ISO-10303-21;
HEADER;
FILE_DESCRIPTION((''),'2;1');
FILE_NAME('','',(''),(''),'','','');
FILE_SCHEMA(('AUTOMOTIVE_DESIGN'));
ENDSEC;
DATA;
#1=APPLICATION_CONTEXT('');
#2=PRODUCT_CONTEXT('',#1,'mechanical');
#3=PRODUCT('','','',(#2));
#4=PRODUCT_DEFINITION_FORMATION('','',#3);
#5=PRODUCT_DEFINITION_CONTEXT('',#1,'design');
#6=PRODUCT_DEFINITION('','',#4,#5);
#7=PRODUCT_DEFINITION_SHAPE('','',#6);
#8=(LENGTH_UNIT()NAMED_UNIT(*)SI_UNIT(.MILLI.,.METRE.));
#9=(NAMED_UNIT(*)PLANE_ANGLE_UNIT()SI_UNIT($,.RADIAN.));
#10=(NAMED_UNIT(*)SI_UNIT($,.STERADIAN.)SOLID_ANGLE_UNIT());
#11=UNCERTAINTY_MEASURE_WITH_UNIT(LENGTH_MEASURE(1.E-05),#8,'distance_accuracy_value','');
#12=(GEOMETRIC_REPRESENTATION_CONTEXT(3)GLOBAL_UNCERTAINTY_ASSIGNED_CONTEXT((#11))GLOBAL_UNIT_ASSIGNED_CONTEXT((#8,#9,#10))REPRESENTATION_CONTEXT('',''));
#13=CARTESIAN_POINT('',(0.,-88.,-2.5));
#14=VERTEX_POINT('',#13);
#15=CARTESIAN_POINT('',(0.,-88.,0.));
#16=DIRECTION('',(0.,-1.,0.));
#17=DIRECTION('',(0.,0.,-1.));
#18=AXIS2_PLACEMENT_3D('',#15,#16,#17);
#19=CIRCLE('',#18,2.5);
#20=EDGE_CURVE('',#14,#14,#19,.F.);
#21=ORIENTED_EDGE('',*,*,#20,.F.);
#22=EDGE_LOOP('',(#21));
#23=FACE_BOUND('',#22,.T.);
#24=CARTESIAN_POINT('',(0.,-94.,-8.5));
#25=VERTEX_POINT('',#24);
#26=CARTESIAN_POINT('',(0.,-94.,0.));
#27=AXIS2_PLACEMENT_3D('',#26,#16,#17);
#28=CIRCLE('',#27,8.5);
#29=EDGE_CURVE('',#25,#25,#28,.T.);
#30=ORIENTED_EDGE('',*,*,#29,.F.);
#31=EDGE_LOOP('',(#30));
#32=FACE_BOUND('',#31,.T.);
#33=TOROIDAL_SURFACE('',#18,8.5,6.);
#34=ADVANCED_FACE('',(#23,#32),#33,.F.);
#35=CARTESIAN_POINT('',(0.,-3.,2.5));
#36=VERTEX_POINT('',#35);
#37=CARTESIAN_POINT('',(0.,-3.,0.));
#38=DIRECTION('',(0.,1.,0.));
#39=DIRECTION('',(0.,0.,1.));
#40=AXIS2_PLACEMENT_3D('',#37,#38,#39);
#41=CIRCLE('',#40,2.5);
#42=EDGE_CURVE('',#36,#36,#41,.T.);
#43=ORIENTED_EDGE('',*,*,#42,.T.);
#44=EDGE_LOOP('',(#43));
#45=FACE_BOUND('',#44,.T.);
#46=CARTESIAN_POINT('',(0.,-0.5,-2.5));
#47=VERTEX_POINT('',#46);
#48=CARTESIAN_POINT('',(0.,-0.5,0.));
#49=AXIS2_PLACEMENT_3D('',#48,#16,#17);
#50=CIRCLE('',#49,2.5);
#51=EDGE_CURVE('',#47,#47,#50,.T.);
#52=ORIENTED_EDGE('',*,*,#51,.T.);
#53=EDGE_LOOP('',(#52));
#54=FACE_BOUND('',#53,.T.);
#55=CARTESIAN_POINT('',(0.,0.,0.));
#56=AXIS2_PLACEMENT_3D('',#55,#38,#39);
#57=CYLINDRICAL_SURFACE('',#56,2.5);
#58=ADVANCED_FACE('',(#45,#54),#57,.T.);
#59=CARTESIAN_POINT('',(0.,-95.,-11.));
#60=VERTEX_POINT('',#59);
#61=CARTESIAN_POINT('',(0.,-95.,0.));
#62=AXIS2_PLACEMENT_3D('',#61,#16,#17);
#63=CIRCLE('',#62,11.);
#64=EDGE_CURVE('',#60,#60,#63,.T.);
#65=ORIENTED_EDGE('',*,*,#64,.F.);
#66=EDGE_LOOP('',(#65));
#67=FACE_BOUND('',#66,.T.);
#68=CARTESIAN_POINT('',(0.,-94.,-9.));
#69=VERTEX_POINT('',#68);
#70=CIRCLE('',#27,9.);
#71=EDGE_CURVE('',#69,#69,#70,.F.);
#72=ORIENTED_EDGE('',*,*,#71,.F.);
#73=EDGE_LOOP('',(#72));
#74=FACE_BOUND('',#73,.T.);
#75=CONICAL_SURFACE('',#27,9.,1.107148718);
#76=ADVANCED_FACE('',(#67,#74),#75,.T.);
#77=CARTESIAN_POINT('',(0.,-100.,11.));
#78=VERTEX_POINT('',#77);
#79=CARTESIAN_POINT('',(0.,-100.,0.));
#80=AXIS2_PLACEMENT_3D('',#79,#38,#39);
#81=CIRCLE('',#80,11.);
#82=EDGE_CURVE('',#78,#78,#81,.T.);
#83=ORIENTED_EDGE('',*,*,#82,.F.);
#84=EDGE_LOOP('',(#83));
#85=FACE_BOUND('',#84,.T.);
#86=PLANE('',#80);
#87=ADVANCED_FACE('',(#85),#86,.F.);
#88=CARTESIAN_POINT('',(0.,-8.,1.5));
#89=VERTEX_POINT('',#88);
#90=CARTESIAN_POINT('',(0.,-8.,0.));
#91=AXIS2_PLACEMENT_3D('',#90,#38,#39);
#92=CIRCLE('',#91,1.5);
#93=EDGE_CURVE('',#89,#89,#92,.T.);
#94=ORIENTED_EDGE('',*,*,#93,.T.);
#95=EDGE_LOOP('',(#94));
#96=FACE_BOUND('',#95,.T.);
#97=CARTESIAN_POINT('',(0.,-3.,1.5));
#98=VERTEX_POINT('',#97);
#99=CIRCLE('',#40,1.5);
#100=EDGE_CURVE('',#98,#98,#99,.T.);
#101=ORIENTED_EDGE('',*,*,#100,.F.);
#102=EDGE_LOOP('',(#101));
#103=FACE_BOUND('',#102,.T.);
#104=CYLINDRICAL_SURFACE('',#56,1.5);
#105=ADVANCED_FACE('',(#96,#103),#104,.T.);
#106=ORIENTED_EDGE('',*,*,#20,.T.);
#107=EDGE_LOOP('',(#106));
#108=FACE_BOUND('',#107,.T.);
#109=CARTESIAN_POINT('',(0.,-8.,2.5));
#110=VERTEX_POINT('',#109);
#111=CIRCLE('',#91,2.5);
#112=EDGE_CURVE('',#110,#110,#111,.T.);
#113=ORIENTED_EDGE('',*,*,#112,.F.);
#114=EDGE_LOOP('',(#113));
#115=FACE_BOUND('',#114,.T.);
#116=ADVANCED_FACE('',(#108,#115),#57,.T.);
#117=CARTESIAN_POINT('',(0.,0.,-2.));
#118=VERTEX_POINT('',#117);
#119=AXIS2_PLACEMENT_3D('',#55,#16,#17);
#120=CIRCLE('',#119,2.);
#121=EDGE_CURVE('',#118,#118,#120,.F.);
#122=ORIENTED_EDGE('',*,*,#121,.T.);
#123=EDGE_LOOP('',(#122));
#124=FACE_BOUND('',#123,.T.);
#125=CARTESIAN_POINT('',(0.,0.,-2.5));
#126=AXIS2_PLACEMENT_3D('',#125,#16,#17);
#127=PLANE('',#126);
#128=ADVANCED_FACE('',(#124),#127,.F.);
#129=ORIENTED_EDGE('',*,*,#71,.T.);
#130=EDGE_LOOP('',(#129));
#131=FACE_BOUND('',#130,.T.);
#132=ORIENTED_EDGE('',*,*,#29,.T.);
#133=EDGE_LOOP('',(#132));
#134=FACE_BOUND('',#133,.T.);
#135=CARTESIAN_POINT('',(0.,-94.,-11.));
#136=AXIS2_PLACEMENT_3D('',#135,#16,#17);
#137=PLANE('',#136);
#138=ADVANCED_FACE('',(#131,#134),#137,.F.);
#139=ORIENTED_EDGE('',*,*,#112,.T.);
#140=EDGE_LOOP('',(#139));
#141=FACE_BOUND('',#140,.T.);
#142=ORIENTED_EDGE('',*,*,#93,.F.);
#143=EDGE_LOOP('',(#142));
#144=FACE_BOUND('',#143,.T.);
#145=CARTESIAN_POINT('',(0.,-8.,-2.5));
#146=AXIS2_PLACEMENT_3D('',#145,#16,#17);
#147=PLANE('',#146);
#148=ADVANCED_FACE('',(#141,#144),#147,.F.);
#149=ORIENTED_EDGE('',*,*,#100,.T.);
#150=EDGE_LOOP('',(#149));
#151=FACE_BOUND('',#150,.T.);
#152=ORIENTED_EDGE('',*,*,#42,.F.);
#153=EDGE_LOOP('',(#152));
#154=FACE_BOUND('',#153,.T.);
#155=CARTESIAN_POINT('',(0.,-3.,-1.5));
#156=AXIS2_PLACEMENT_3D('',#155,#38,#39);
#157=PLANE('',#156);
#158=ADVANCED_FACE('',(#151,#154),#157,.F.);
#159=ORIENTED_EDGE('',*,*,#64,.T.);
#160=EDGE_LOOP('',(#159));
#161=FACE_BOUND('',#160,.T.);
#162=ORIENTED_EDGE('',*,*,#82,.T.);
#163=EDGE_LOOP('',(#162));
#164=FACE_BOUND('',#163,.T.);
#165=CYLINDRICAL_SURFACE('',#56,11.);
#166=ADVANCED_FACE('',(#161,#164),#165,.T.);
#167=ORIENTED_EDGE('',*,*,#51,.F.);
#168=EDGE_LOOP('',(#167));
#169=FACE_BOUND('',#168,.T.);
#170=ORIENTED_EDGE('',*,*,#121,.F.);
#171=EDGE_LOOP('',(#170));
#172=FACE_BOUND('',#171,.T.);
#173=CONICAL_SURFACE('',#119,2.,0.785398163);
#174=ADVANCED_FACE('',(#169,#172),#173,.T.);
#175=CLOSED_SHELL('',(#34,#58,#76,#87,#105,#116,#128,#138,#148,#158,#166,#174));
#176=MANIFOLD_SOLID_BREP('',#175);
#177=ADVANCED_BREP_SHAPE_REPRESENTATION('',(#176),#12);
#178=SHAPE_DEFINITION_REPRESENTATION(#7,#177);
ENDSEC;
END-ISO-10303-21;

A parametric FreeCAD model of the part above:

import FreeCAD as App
import Part
import Sketcher

V = App.Vector
Q = App.Units.Quantity


def edges_at(feature, points):
    """Names of the edges that pass closest to the given points."""
    edges = feature.Shape.Edges
    near = lambda p: min(range(len(edges)), key=lambda i: edges[i].distToShape(Part.Vertex(*p))[0])
    return sorted({f"Edge{near(p) + 1}" for p in points})


def add_polygon(sketch, points):
    """Adds a closed chain of lines whose ends are joined by coincident constraints."""
    first, n = sketch.GeometryCount, len(points)
    for a, b in zip(points, points[1:] + points[:1]):
        sketch.addGeometry(Part.LineSegment(App.Vector(*a, 0), App.Vector(*b, 0)), False)
    for i in range(n):
        sketch.addConstraint(Sketcher.Constraint("Coincident", first + i, 2, first + (i + 1) % n, 1))

doc = App.newDocument("Part")
params = doc.addObject("Spreadsheet::Sheet", "Params")
for row, (alias, value) in enumerate([
    ("sketch1_width", "100 mm"),
    ("sketch1_width2", "6 mm"),
    ("sketch1_width3", "86 mm"),
    ("sketch1_width4", "5 mm"),
    ("sketch1_height", "11 mm"),
    ("revolution_angle", "360 deg"),
    ("fillet_radius", "6 mm"),
    ("chamfer_size", "1 mm"),
    ("chamfer_size2", "2 mm"),
    ("chamfer2_size", "0.5 mm"),
], start=1):
    params.set(f"A{row}", alias)
    params.set(f"B{row}", "=" + value)
    params.setAlias(f"B{row}", alias)

body = doc.addObject("PartDesign::Body", "Body")

# Sketch on YZ plane
sketch1 = body.newObject("Sketcher::SketchObject", "Sketch")
sketch1.AttachmentSupport = (doc.getObject("YZ_Plane"), [""])
sketch1.MapMode = "FlatFace"
add_polygon(sketch1, [(0, 0), (-100, 0), (-100, -11), (-94, -11), (-94, -2.5), (-8, -2.5), (-8, -1.5), (-3, -1.5), (-3, -2.5), (0, -2.5)])  # lines 0-9
sketch1.addConstraint([
    Sketcher.Constraint("Horizontal", 0),
    Sketcher.Constraint("Vertical", 1),
    Sketcher.Constraint("Horizontal", 2),
    Sketcher.Constraint("Vertical", 3),
    Sketcher.Constraint("Horizontal", 4),
    Sketcher.Constraint("Vertical", 5),
    Sketcher.Constraint("Horizontal", 6),
    Sketcher.Constraint("Vertical", 7),
    Sketcher.Constraint("Horizontal", 8),
    Sketcher.Constraint("Vertical", 9),
    Sketcher.Constraint("Coincident", 9, 2, -1, 1),
    Sketcher.Constraint("Horizontal", 4, 2, 7, 2),
    Sketcher.Constraint("DistanceX", 0, 2, 0, 1, Q("100 mm")),
    Sketcher.Constraint("DistanceX", 2, 1, 2, 2, Q("6 mm")),
    Sketcher.Constraint("DistanceX", 4, 1, 4, 2, Q("86 mm")),
    Sketcher.Constraint("DistanceX", 6, 1, 6, 2, Q("5 mm")),
    Sketcher.Constraint("DistanceY", 1, 2, 1, 1, Q("11 mm")),
    Sketcher.Constraint("DistanceY", 5, 1, 5, 2, Q("1 mm")),
    Sketcher.Constraint("DistanceY", 3, 1, 3, 2, Q("8.5 mm")),
])
sketch1.setExpression("Constraints[22]", "Params.sketch1_width")
sketch1.setExpression("Constraints[23]", "Params.sketch1_width2")
sketch1.setExpression("Constraints[24]", "Params.sketch1_width3")
sketch1.setExpression("Constraints[25]", "Params.sketch1_width4")
sketch1.setExpression("Constraints[26]", "Params.sketch1_height")
revolution = body.newObject("PartDesign::Revolution", "Revolution")
revolution.Profile = sketch1
revolution.ReferenceAxis = (sketch1, ["H_Axis"])
revolution.setExpression("Angle", "Params.revolution_angle")
doc.recompute()

fillet = body.newObject("PartDesign::Fillet", "Fillet")
fillet.Base = (revolution, edges_at(revolution, [(0, -94, 2.5)]))
fillet.setExpression("Radius", "Params.fillet_radius")
doc.recompute()

chamfer = body.newObject("PartDesign::Chamfer", "Chamfer")
chamfer.Base = (fillet, edges_at(fillet, [(0, -94, 11)]))
chamfer.ChamferType = "Two distances"
chamfer.setExpression("Size", "Params.chamfer_size")
chamfer.setExpression("Size2", "Params.chamfer_size2")
chamfer.FlipDirection = True
doc.recompute()

chamfer2 = body.newObject("PartDesign::Chamfer", "Chamfer001")
chamfer2.Base = (chamfer, edges_at(chamfer, [(0, 0, 2.5)]))
chamfer2.setExpression("Size", "Params.chamfer2_size")

doc.recompute()
